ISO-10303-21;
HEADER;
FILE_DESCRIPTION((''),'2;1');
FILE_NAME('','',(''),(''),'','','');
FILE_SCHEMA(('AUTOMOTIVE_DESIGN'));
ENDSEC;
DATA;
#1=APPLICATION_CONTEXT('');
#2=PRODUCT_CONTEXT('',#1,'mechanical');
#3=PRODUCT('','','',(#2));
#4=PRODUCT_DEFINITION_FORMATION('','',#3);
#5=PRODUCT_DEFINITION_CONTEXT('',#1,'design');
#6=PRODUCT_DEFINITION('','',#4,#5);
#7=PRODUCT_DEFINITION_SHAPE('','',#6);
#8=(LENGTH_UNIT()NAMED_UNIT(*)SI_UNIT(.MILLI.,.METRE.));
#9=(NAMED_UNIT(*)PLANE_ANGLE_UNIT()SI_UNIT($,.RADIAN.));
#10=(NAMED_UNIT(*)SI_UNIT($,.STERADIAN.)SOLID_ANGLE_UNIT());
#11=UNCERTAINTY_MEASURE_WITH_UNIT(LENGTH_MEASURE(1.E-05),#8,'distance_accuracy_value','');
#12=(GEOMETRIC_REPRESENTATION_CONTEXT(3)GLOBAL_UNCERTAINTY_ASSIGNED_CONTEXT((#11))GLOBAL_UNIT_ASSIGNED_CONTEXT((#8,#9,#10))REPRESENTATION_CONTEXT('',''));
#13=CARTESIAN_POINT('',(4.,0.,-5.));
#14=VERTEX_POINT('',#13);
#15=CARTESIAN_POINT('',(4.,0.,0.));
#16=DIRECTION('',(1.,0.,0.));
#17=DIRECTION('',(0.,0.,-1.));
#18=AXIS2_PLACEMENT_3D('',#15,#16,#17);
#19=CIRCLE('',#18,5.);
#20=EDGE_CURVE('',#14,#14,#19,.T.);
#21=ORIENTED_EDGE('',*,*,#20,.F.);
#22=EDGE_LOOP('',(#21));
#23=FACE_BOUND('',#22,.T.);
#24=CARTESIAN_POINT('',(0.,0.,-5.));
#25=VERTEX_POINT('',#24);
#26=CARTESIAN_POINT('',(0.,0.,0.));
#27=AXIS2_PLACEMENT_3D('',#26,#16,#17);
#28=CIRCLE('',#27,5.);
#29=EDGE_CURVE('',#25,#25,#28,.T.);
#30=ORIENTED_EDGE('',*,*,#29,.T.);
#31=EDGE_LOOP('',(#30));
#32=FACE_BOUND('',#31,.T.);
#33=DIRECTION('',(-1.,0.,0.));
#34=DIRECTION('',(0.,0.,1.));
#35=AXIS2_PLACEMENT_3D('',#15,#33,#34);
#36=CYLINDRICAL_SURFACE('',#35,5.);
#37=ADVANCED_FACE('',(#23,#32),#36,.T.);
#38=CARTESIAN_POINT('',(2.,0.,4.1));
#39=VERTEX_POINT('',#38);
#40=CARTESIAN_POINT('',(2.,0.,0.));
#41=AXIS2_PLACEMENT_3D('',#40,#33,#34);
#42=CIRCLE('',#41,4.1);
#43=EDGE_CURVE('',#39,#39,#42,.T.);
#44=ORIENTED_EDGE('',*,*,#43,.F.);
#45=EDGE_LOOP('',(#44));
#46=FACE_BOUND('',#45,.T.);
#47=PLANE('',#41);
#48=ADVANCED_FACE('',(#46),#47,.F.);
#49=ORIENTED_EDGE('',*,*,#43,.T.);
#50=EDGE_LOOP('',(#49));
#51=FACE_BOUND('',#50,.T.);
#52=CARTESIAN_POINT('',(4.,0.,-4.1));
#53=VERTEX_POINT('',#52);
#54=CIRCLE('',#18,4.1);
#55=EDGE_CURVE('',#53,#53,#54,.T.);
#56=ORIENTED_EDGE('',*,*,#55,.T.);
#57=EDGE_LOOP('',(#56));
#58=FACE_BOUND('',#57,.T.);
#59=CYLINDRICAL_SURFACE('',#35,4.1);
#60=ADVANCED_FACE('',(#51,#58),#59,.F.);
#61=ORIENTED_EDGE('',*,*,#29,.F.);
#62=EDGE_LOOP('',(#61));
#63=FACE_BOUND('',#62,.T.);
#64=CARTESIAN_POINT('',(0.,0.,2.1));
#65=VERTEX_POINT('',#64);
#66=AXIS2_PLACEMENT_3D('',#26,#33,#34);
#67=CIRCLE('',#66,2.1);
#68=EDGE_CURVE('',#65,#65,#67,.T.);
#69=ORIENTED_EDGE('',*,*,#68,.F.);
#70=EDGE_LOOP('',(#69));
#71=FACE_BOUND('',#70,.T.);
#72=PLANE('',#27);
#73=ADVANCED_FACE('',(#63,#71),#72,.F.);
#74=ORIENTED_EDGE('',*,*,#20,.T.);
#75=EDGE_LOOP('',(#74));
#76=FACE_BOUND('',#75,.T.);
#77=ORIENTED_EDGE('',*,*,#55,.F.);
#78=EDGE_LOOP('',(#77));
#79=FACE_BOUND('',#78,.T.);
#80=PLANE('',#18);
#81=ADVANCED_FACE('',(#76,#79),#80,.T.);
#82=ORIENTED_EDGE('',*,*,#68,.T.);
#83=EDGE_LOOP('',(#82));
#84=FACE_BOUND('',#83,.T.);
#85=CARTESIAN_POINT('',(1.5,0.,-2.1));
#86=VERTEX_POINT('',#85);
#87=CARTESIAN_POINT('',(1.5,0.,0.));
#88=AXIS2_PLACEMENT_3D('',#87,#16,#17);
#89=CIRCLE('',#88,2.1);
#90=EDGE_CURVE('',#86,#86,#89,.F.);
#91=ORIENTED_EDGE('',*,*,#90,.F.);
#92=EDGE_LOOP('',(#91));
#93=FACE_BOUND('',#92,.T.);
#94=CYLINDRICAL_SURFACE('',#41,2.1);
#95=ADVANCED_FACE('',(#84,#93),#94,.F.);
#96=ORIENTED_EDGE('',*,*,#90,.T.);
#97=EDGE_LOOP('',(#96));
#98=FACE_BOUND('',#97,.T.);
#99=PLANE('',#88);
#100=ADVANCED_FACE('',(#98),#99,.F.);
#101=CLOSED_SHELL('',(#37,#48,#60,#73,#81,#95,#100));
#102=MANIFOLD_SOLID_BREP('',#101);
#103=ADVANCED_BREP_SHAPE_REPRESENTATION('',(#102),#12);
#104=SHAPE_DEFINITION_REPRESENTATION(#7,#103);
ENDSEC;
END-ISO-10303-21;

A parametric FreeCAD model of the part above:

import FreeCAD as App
import Part
import Sketcher

doc = App.newDocument("Part")
body = doc.addObject("PartDesign::Body", "Body")

sketch1 = body.newObject("Sketcher::SketchObject", "Sketch")
sketch1.AttachmentSupport = (doc.getObject("YZ_Plane"), [""])
sketch1.MapMode = "FlatFace"
sketch1.addGeometry(Part.Circle(App.Vector(0, 0, 0), App.Vector(0, 0, 1), 5), False)
sketch1.addGeometry(Part.Circle(App.Vector(0, 0, 0), App.Vector(0, 0, 1), 4.1), False)
sketch1.addConstraint(Sketcher.Constraint("Coincident", 0, 3, -1, 1))
sketch1.addConstraint(Sketcher.Constraint("Coincident", 1, 3, -1, 1))
sketch1.addConstraint(Sketcher.Constraint("Diameter", 0, 10.0))
sketch1.addConstraint(Sketcher.Constraint("Diameter", 1, 8.2))
pad1 = body.newObject("PartDesign::Pad", "Pad")
pad1.Profile = sketch1
pad1.Length = 4

sketch2 = body.newObject("Sketcher::SketchObject", "Sketch001")
sketch2.AttachmentSupport = (doc.getObject("YZ_Plane"), [""])
sketch2.MapMode = "FlatFace"
sketch2.addGeometry(Part.Circle(App.Vector(0, 0, 0), App.Vector(0, 0, 1), 4.1), False)
sketch2.addGeometry(Part.Circle(App.Vector(0, 0, 0), App.Vector(0, 0, 1), 2.1), False)
sketch2.addConstraint(Sketcher.Constraint("Coincident", 0, 3, -1, 1))
sketch2.addConstraint(Sketcher.Constraint("Coincident", 1, 3, -1, 1))
sketch2.addConstraint(Sketcher.Constraint("Diameter", 0, 8.2))
sketch2.addConstraint(Sketcher.Constraint("Diameter", 1, 4.2))
pad2 = body.newObject("PartDesign::Pad", "Pad001")
pad2.Profile = sketch2
pad2.Length = 2

sketch3 = body.newObject("Sketcher::SketchObject", "Sketch002")
sketch3.AttachmentSupport = (doc.getObject("YZ_Plane"), [""])
sketch3.MapMode = "FlatFace"
sketch3.AttachmentOffset = App.Placement(App.Vector(0, 0, 1.5), App.Rotation())
sketch3.addGeometry(Part.Circle(App.Vector(0, 0, 0), App.Vector(0, 0, 1), 2.1), False)
sketch3.addConstraint(Sketcher.Constraint("Coincident", 0, 3, -1, 1))
sketch3.addConstraint(Sketcher.Constraint("Diameter", 0, 4.2))
pad3 = body.newObject("PartDesign::Pad", "Pad002")
pad3.Profile = sketch3
pad3.Length = 0.5

doc.recompute()
